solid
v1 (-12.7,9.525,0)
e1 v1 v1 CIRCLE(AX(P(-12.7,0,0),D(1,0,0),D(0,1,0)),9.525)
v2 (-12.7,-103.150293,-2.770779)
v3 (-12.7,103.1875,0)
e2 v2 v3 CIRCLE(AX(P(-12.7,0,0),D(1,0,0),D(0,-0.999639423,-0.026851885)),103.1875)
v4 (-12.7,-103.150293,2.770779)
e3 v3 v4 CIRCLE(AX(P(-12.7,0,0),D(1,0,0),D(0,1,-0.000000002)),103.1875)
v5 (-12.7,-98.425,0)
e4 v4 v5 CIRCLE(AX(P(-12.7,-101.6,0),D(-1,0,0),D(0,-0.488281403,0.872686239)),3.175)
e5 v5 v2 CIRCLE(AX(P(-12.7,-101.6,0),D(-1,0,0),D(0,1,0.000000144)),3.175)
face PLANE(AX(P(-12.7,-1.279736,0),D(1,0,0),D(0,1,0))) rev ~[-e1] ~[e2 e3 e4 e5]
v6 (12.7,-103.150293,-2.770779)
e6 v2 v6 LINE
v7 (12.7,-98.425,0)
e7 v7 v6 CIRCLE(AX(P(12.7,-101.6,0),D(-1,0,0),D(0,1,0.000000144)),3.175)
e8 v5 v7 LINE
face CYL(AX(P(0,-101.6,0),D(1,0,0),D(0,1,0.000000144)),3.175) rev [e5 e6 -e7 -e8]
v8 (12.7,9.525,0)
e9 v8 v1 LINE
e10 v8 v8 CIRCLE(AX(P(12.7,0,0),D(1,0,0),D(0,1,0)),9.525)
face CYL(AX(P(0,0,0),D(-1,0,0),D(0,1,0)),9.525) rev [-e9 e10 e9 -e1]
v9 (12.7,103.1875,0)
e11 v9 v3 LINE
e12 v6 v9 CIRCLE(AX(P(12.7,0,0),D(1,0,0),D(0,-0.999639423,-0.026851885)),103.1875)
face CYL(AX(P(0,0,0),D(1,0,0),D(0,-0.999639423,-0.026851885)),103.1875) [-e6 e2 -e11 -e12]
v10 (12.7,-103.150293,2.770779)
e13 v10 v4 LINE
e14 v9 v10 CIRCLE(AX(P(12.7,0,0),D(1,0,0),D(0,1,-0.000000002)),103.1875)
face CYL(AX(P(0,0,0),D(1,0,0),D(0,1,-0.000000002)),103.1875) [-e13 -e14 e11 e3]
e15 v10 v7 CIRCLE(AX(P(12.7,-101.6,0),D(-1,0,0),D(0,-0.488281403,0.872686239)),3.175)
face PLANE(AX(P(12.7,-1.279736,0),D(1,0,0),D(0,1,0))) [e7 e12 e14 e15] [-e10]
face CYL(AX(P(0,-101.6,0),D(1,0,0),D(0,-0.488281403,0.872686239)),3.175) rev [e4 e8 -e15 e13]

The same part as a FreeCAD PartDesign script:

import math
import FreeCAD as App
import Part
import Sketcher
Q = App.Units.Quantity

doc = App.newDocument("Part")
params = doc.addObject("Spreadsheet::Sheet", "Params")
for row, (alias, value) in enumerate([
    ("sketch1_diameter", "0.75 in"),
    ("sketch1_radius", "0.125 in"),
    ("sketch1_radius2", "4.0625 in"),
    ("pad1_length", "1 in"),
], start=1):
    params.set(f"A{row}", alias)
    params.set(f"B{row}", "=" + value)
    params.setAlias(f"B{row}", alias)

body = doc.addObject("PartDesign::Body", "Body")

sketch1 = doc.addObject("Sketcher::SketchObject", "Sketch")
body.addObject(sketch1)
sketch1.AttachmentSupport = (doc.YZ_Plane, [""])
sketch1.MapMode = "FlatFace"
sketch1.addGeometry(Part.ArcOfCircle(Part.Circle(App.Vector(-101.6, 0, 0), App.Vector(0, 0, 1), 3.175), math.radians(-0.000008), math.radians(119.227686)), False)
sketch1.addGeometry(Part.ArcOfCircle(Part.Circle(App.Vector(-101.6, 0, 0), App.Vector(0, 0, 1), 3.175), math.radians(-119.227686), math.radians(0.000008)), False)
sketch1.addGeometry(Part.ArcOfCircle(Part.Circle(App.Vector(0, 0, 0), App.Vector(0, 0, 1), 103.1875), math.radians(-178.461315), math.radians(0)), False)
sketch1.addGeometry(Part.ArcOfCircle(Part.Circle(App.Vector(0, 0, 0), App.Vector(0, 0, 1), 103.1875), math.radians(0), math.radians(178.461315)), False)
sketch1.addGeometry(Part.Circle(App.Vector(0, 0, 0), App.Vector(0, 0, 1), 9.525), False)
sketch1.addConstraint(Sketcher.Constraint("Tangent", 0, 1, 1, 2))
sketch1.addConstraint(Sketcher.Constraint("Coincident", 1, 1, 2, 1))
sketch1.addConstraint(Sketcher.Constraint("Tangent", 2, 2, 3, 1))
sketch1.addConstraint(Sketcher.Constraint("Coincident", 3, 2, 0, 2))
sketch1.addConstraint(Sketcher.Constraint("Coincident", 2, 3, -1, 1))
sketch1.addConstraint(Sketcher.Constraint("Coincident", 4, 3, -1, 1))
sketch1.addConstraint(Sketcher.Constraint("Equal", 0, 1))
sketch1.addConstraint(Sketcher.Constraint("Equal", 2, 3))
sketch1.addConstraint(Sketcher.Constraint("PointOnObject", 0, 3, -1))
sketch1.addConstraint(Sketcher.Constraint("PointOnObject", 0, 1, -1))
sketch1.addConstraint(Sketcher.Constraint("PointOnObject", 2, 2, -1))
sketch1.addConstraint(Sketcher.Constraint("Diameter", 4, Q("0.75 in")))
sketch1.addConstraint(Sketcher.Constraint("DistanceX", 0, 3, -1, 1, Q("4 in")))
sketch1.addConstraint(Sketcher.Constraint("Radius", 0, Q("0.125 in")))
sketch1.addConstraint(Sketcher.Constraint("Radius", 2, Q("4.0625 in")))
sketch1.setExpression("Constraints[11]", "Params.sketch1_diameter")
sketch1.setExpression("Constraints[13]", "Params.sketch1_radius")
sketch1.setExpression("Constraints[14]", "Params.sketch1_radius2")
pad1 = doc.addObject("PartDesign::Pad", "Pad")
body.addObject(pad1)
pad1.Profile = sketch1
pad1.setExpression("Length", "Params.pad1_length")
pad1.Midplane = True

doc.recompute()
